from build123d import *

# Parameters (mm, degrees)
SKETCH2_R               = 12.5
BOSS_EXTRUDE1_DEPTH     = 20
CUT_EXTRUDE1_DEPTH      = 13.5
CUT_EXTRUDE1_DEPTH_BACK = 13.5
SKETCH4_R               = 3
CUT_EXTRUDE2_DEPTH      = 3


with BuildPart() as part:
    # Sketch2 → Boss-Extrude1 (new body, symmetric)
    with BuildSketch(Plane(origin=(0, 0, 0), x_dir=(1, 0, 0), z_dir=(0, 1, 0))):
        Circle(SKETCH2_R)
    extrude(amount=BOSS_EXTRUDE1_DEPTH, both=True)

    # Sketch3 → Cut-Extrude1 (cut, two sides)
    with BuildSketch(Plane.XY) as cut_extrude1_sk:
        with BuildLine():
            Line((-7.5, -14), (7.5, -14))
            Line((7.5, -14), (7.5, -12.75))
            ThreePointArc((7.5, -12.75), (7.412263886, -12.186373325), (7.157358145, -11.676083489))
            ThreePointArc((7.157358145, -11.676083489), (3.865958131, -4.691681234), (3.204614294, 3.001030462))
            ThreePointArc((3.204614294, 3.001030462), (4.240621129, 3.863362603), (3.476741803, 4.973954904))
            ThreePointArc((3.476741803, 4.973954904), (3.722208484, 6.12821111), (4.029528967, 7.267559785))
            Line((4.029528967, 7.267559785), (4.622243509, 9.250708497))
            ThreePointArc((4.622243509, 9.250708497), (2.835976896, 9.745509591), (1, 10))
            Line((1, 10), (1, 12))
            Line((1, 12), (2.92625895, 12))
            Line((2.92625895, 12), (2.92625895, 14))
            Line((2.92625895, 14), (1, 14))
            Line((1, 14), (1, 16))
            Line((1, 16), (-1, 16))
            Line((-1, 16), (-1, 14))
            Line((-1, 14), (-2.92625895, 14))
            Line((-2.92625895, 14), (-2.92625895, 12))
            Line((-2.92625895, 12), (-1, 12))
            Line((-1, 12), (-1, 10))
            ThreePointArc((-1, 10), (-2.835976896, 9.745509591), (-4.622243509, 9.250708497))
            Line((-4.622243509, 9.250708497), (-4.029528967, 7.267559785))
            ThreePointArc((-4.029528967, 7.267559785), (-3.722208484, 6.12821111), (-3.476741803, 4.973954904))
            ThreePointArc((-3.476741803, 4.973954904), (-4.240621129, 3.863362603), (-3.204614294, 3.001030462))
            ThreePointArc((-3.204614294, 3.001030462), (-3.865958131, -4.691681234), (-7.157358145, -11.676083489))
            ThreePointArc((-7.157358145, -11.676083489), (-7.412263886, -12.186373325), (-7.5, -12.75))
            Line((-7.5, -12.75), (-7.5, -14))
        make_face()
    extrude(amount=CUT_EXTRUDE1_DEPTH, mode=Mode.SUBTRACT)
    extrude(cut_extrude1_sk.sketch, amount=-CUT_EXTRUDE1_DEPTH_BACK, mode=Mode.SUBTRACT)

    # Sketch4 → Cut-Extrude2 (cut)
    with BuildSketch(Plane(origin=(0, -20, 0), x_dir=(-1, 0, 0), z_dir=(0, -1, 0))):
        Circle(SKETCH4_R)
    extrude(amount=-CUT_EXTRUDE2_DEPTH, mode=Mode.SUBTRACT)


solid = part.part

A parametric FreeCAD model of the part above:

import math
import FreeCAD as App
import Part
import Sketcher
Q = App.Units.Quantity

doc = App.newDocument("Part")
body = doc.addObject("PartDesign::Body", "Body")

sketch1 = doc.addObject("Sketcher::SketchObject", "Sketch")
body.addObject(sketch1)
sketch1.AttachmentSupport = (doc.XZ_Plane, [""])
sketch1.MapMode = "FlatFace"
sketch1.addGeometry(Part.Circle(App.Vector(0, 0, 0), App.Vector(0, 0, 1), 12.5), False)
sketch1.addConstraint([
    Sketcher.Constraint("Coincident", 0, 3, -1, 1),
    Sketcher.Constraint("Diameter", 0, Q("25 mm")),
])
pad1 = doc.addObject("PartDesign::Pad", "Pad")
body.addObject(pad1)
pad1.Profile = sketch1
pad1.Length = 40
pad1.Midplane = True

sketch2 = doc.addObject("Sketcher::SketchObject", "Sketch001")
body.addObject(sketch2)
sketch2.AttachmentSupport = (doc.XY_Plane, [""])
sketch2.MapMode = "FlatFace"
sketch2.addGeometry([
    Part.LineSegment(App.Vector(-7.5, -14, 0), App.Vector(7.5, -14, 0)),
    Part.LineSegment(App.Vector(7.5, -14, 0), App.Vector(7.5, -12.75, 0)),
    Part.ArcOfCircle(Part.Circle(App.Vector(5.645731, -12.75, 0), App.Vector(0, 0, 1), 1.854269), math.radians(0), math.radians(35.391418)),
    Part.ArcOfCircle(Part.Circle(App.Vector(25, 1, 0), App.Vector(0, 0, 1), 21.88705), math.radians(174.75439), math.radians(215.391418)),
    Part.ArcOfCircle(Part.Circle(App.Vector(3.25, 4, 0), App.Vector(0, 0, 1), 1), math.radians(-92.601303), math.radians(76.894676)),
    Part.ArcOfCircle(Part.Circle(App.Vector(25, 1, 0), App.Vector(0, 0, 1), 21.88705), math.radians(163.359884), math.radians(169.538983)),
    Part.LineSegment(App.Vector(4.029529, 7.26756, 0), App.Vector(4.622244, 9.250708, 0)),
    Part.ArcOfCircle(Part.Circle(App.Vector(0, -3.96424, 0), App.Vector(0, 0, 1), 14), math.radians(70.721498), math.radians(85.903956)),
    Part.LineSegment(App.Vector(1, 10, 0), App.Vector(1, 12, 0)),
    Part.LineSegment(App.Vector(1, 12, 0), App.Vector(2.926259, 12, 0)),
    Part.LineSegment(App.Vector(2.926259, 12, 0), App.Vector(2.926259, 14, 0)),
    Part.LineSegment(App.Vector(2.926259, 14, 0), App.Vector(1, 14, 0)),
    Part.LineSegment(App.Vector(1, 14, 0), App.Vector(1, 16, 0)),
    Part.LineSegment(App.Vector(1, 16, 0), App.Vector(-1, 16, 0)),
    Part.LineSegment(App.Vector(-1, 16, 0), App.Vector(-1, 14, 0)),
    Part.LineSegment(App.Vector(-1, 14, 0), App.Vector(-2.926259, 14, 0)),
    Part.LineSegment(App.Vector(-2.926259, 14, 0), App.Vector(-2.926259, 12, 0)),
    Part.LineSegment(App.Vector(-2.926259, 12, 0), App.Vector(-1, 12, 0)),
    Part.LineSegment(App.Vector(-1, 12, 0), App.Vector(-1, 10, 0)),
    Part.ArcOfCircle(Part.Circle(App.Vector(0, -3.96424, 0), App.Vector(0, 0, 1), 14), math.radians(94.096044), math.radians(109.278502)),
    Part.LineSegment(App.Vector(-4.622244, 9.250708, 0), App.Vector(-4.029529, 7.26756, 0)),
    Part.ArcOfCircle(Part.Circle(App.Vector(-25, 1, 0), App.Vector(0, 0, 1), 21.88705), math.radians(10.461017), math.radians(16.640116)),
    Part.ArcOfCircle(Part.Circle(App.Vector(-3.25, 4, 0), App.Vector(0, 0, 1), 1), math.radians(103.105324), math.radians(272.601303)),
    Part.ArcOfCircle(Part.Circle(App.Vector(-25, 1, 0), App.Vector(0, 0, 1), 21.88705), math.radians(-35.391418), math.radians(5.24561)),
    Part.ArcOfCircle(Part.Circle(App.Vector(-5.645731, -12.75, 0), App.Vector(0, 0, 1), 1.854269), math.radians(144.608582), math.radians(180)),
    Part.LineSegment(App.Vector(-7.5, -12.75, 0), App.Vector(-7.5, -14, 0)),
], False)
sketch2.addConstraint([
    Sketcher.Constraint("Coincident", 0, 2, 1, 1),
    Sketcher.Constraint("Tangent", 1, 2, 2, 1),
    Sketcher.Constraint("Tangent", 2, 2, 3, 2),
    Sketcher.Constraint("Coincident", 3, 1, 4, 1),
    Sketcher.Constraint("Coincident", 4, 2, 5, 2),
    Sketcher.Constraint("Tangent", 5, 1, 6, 1),
    Sketcher.Constraint("Coincident", 6, 2, 7, 1),
    Sketcher.Constraint("Coincident", 7, 2, 8, 1),
    Sketcher.Constraint("Coincident", 8, 2, 9, 1),
    Sketcher.Constraint("Coincident", 9, 2, 10, 1),
    Sketcher.Constraint("Coincident", 10, 2, 11, 1),
    Sketcher.Constraint("Coincident", 11, 2, 12, 1),
    Sketcher.Constraint("Coincident", 12, 2, 13, 1),
    Sketcher.Constraint("Coincident", 13, 2, 14, 1),
    Sketcher.Constraint("Coincident", 14, 2, 15, 1),
    Sketcher.Constraint("Coincident", 15, 2, 16, 1),
    Sketcher.Constraint("Coincident", 16, 2, 17, 1),
    Sketcher.Constraint("Coincident", 17, 2, 18, 1),
    Sketcher.Constraint("Coincident", 18, 2, 19, 1),
    Sketcher.Constraint("Coincident", 19, 2, 20, 1),
    Sketcher.Constraint("Tangent", 20, 2, 21, 2),
    Sketcher.Constraint("Coincident", 21, 1, 22, 1),
    Sketcher.Constraint("Coincident", 22, 2, 23, 2),
    Sketcher.Constraint("Tangent", 23, 1, 24, 1),
    Sketcher.Constraint("Tangent", 24, 2, 25, 1),
    Sketcher.Constraint("Coincident", 25, 2, 0, 1),
    Sketcher.Constraint("Horizontal", 0),
    Sketcher.Constraint("Vertical", 1),
    Sketcher.Constraint("Vertical", 8),
    Sketcher.Constraint("Horizontal", 9),
    Sketcher.Constraint("Vertical", 10),
    Sketcher.Constraint("Horizontal", 11),
    Sketcher.Constraint("Vertical", 12),
    Sketcher.Constraint("Horizontal", 13),
    Sketcher.Constraint("Vertical", 14),
    Sketcher.Constraint("Horizontal", 15),
    Sketcher.Constraint("Vertical", 16),
    Sketcher.Constraint("Horizontal", 17),
    Sketcher.Constraint("Vertical", 18),
    Sketcher.Constraint("Vertical", 25),
    Sketcher.Constraint("Coincident", 5, 3, 3, 3),
    Sketcher.Constraint("Coincident", 19, 3, 7, 3),
    Sketcher.Constraint("Coincident", 23, 3, 21, 3),
    Sketcher.Constraint("Equal", 3, 5),
    Sketcher.Constraint("Equal", 7, 19),
    Sketcher.Constraint("Equal", 5, 21),
    Sketcher.Constraint("Equal", 4, 22),
    Sketcher.Constraint("Equal", 21, 23),
    Sketcher.Constraint("Equal", 2, 24),
    Sketcher.Constraint("Symmetric", 3, 3, 21, 3, -2),
    Sketcher.Constraint("Symmetric", 4, 3, 22, 3, -2),
    Sketcher.Constraint("Symmetric", 11, 2, 14, 2, -2),
    Sketcher.Constraint("Symmetric", 9, 2, 16, 2, -2),
    Sketcher.Constraint("Symmetric", 7, 2, 18, 2, -2),
    Sketcher.Constraint("Horizontal", 2, 3, 24, 3),
    Sketcher.Constraint("Horizontal", 6, 2, 19, 2),
    Sketcher.Constraint("Vertical", 8, 2, 11, 2),
    Sketcher.Constraint("Equal", 13, 8),
    Sketcher.Constraint("Equal", 8, 10),
    Sketcher.Constraint("Equal", 10, 12),
    Sketcher.Constraint("Radius", 4, Q("1 mm")),
    Sketcher.Constraint("Radius", 7, Q("14 mm")),
    Sketcher.Constraint("DistanceX", 0, 1, 0, 2, Q("15 mm")),
    Sketcher.Constraint("DistanceX", 13, 2, 13, 1, Q("2 mm")),
    Sketcher.Constraint("DistanceX", -1, 1, 3, 3, Q("25 mm")),
    Sketcher.Constraint("DistanceY", -1, 1, 3, 3, Q("1 mm")),
    Sketcher.Constraint("DistanceY", -1, 1, 4, 3, Q("4 mm")),
    Sketcher.Constraint("DistanceY", 0, 2, -1, 1, Q("14 mm")),
    Sketcher.Constraint("DistanceY", -1, 1, 7, 2, Q("10 mm")),
    Sketcher.Constraint("DistanceY", 1, 1, 1, 2, Q("1.25 mm")),
    Sketcher.Constraint("DistanceX", 22, 3, 4, 3, Q("6.5 mm")),
    Sketcher.Constraint("Radius", 2, Q("1.854269 mm")),
    Sketcher.Constraint("DistanceX", 9, 1, 9, 2, Q("1.926259 mm")),
    Sketcher.Constraint("DistanceY", 7, 3, 5, 1, Q("11.2318 mm")),
])
pocket1 = doc.addObject("PartDesign::Pocket", "Pocket")
body.addObject(pocket1)
pocket1.Profile = sketch2
pocket1.Type = "ThroughAll"
pocket1.Midplane = True

sketch3 = doc.addObject("Sketcher::SketchObject", "Sketch002")
body.addObject(sketch3)
sketch3.AttachmentSupport = (doc.XZ_Plane, [""])
sketch3.MapMode = "FlatFace"
sketch3.AttachmentOffset = App.Placement(App.Vector(0, 0, 20), App.Rotation())
sketch3.addGeometry(Part.Circle(App.Vector(0, 0, 0), App.Vector(0, 0, 1), 3), False)
sketch3.addConstraint([
    Sketcher.Constraint("Coincident", 0, 3, -1, 1),
    Sketcher.Constraint("Diameter", 0, Q("6 mm")),
])
pocket2 = doc.addObject("PartDesign::Pocket", "Pocket001")
body.addObject(pocket2)
pocket2.Profile = sketch3
pocket2.Length = 3

doc.recompute()
